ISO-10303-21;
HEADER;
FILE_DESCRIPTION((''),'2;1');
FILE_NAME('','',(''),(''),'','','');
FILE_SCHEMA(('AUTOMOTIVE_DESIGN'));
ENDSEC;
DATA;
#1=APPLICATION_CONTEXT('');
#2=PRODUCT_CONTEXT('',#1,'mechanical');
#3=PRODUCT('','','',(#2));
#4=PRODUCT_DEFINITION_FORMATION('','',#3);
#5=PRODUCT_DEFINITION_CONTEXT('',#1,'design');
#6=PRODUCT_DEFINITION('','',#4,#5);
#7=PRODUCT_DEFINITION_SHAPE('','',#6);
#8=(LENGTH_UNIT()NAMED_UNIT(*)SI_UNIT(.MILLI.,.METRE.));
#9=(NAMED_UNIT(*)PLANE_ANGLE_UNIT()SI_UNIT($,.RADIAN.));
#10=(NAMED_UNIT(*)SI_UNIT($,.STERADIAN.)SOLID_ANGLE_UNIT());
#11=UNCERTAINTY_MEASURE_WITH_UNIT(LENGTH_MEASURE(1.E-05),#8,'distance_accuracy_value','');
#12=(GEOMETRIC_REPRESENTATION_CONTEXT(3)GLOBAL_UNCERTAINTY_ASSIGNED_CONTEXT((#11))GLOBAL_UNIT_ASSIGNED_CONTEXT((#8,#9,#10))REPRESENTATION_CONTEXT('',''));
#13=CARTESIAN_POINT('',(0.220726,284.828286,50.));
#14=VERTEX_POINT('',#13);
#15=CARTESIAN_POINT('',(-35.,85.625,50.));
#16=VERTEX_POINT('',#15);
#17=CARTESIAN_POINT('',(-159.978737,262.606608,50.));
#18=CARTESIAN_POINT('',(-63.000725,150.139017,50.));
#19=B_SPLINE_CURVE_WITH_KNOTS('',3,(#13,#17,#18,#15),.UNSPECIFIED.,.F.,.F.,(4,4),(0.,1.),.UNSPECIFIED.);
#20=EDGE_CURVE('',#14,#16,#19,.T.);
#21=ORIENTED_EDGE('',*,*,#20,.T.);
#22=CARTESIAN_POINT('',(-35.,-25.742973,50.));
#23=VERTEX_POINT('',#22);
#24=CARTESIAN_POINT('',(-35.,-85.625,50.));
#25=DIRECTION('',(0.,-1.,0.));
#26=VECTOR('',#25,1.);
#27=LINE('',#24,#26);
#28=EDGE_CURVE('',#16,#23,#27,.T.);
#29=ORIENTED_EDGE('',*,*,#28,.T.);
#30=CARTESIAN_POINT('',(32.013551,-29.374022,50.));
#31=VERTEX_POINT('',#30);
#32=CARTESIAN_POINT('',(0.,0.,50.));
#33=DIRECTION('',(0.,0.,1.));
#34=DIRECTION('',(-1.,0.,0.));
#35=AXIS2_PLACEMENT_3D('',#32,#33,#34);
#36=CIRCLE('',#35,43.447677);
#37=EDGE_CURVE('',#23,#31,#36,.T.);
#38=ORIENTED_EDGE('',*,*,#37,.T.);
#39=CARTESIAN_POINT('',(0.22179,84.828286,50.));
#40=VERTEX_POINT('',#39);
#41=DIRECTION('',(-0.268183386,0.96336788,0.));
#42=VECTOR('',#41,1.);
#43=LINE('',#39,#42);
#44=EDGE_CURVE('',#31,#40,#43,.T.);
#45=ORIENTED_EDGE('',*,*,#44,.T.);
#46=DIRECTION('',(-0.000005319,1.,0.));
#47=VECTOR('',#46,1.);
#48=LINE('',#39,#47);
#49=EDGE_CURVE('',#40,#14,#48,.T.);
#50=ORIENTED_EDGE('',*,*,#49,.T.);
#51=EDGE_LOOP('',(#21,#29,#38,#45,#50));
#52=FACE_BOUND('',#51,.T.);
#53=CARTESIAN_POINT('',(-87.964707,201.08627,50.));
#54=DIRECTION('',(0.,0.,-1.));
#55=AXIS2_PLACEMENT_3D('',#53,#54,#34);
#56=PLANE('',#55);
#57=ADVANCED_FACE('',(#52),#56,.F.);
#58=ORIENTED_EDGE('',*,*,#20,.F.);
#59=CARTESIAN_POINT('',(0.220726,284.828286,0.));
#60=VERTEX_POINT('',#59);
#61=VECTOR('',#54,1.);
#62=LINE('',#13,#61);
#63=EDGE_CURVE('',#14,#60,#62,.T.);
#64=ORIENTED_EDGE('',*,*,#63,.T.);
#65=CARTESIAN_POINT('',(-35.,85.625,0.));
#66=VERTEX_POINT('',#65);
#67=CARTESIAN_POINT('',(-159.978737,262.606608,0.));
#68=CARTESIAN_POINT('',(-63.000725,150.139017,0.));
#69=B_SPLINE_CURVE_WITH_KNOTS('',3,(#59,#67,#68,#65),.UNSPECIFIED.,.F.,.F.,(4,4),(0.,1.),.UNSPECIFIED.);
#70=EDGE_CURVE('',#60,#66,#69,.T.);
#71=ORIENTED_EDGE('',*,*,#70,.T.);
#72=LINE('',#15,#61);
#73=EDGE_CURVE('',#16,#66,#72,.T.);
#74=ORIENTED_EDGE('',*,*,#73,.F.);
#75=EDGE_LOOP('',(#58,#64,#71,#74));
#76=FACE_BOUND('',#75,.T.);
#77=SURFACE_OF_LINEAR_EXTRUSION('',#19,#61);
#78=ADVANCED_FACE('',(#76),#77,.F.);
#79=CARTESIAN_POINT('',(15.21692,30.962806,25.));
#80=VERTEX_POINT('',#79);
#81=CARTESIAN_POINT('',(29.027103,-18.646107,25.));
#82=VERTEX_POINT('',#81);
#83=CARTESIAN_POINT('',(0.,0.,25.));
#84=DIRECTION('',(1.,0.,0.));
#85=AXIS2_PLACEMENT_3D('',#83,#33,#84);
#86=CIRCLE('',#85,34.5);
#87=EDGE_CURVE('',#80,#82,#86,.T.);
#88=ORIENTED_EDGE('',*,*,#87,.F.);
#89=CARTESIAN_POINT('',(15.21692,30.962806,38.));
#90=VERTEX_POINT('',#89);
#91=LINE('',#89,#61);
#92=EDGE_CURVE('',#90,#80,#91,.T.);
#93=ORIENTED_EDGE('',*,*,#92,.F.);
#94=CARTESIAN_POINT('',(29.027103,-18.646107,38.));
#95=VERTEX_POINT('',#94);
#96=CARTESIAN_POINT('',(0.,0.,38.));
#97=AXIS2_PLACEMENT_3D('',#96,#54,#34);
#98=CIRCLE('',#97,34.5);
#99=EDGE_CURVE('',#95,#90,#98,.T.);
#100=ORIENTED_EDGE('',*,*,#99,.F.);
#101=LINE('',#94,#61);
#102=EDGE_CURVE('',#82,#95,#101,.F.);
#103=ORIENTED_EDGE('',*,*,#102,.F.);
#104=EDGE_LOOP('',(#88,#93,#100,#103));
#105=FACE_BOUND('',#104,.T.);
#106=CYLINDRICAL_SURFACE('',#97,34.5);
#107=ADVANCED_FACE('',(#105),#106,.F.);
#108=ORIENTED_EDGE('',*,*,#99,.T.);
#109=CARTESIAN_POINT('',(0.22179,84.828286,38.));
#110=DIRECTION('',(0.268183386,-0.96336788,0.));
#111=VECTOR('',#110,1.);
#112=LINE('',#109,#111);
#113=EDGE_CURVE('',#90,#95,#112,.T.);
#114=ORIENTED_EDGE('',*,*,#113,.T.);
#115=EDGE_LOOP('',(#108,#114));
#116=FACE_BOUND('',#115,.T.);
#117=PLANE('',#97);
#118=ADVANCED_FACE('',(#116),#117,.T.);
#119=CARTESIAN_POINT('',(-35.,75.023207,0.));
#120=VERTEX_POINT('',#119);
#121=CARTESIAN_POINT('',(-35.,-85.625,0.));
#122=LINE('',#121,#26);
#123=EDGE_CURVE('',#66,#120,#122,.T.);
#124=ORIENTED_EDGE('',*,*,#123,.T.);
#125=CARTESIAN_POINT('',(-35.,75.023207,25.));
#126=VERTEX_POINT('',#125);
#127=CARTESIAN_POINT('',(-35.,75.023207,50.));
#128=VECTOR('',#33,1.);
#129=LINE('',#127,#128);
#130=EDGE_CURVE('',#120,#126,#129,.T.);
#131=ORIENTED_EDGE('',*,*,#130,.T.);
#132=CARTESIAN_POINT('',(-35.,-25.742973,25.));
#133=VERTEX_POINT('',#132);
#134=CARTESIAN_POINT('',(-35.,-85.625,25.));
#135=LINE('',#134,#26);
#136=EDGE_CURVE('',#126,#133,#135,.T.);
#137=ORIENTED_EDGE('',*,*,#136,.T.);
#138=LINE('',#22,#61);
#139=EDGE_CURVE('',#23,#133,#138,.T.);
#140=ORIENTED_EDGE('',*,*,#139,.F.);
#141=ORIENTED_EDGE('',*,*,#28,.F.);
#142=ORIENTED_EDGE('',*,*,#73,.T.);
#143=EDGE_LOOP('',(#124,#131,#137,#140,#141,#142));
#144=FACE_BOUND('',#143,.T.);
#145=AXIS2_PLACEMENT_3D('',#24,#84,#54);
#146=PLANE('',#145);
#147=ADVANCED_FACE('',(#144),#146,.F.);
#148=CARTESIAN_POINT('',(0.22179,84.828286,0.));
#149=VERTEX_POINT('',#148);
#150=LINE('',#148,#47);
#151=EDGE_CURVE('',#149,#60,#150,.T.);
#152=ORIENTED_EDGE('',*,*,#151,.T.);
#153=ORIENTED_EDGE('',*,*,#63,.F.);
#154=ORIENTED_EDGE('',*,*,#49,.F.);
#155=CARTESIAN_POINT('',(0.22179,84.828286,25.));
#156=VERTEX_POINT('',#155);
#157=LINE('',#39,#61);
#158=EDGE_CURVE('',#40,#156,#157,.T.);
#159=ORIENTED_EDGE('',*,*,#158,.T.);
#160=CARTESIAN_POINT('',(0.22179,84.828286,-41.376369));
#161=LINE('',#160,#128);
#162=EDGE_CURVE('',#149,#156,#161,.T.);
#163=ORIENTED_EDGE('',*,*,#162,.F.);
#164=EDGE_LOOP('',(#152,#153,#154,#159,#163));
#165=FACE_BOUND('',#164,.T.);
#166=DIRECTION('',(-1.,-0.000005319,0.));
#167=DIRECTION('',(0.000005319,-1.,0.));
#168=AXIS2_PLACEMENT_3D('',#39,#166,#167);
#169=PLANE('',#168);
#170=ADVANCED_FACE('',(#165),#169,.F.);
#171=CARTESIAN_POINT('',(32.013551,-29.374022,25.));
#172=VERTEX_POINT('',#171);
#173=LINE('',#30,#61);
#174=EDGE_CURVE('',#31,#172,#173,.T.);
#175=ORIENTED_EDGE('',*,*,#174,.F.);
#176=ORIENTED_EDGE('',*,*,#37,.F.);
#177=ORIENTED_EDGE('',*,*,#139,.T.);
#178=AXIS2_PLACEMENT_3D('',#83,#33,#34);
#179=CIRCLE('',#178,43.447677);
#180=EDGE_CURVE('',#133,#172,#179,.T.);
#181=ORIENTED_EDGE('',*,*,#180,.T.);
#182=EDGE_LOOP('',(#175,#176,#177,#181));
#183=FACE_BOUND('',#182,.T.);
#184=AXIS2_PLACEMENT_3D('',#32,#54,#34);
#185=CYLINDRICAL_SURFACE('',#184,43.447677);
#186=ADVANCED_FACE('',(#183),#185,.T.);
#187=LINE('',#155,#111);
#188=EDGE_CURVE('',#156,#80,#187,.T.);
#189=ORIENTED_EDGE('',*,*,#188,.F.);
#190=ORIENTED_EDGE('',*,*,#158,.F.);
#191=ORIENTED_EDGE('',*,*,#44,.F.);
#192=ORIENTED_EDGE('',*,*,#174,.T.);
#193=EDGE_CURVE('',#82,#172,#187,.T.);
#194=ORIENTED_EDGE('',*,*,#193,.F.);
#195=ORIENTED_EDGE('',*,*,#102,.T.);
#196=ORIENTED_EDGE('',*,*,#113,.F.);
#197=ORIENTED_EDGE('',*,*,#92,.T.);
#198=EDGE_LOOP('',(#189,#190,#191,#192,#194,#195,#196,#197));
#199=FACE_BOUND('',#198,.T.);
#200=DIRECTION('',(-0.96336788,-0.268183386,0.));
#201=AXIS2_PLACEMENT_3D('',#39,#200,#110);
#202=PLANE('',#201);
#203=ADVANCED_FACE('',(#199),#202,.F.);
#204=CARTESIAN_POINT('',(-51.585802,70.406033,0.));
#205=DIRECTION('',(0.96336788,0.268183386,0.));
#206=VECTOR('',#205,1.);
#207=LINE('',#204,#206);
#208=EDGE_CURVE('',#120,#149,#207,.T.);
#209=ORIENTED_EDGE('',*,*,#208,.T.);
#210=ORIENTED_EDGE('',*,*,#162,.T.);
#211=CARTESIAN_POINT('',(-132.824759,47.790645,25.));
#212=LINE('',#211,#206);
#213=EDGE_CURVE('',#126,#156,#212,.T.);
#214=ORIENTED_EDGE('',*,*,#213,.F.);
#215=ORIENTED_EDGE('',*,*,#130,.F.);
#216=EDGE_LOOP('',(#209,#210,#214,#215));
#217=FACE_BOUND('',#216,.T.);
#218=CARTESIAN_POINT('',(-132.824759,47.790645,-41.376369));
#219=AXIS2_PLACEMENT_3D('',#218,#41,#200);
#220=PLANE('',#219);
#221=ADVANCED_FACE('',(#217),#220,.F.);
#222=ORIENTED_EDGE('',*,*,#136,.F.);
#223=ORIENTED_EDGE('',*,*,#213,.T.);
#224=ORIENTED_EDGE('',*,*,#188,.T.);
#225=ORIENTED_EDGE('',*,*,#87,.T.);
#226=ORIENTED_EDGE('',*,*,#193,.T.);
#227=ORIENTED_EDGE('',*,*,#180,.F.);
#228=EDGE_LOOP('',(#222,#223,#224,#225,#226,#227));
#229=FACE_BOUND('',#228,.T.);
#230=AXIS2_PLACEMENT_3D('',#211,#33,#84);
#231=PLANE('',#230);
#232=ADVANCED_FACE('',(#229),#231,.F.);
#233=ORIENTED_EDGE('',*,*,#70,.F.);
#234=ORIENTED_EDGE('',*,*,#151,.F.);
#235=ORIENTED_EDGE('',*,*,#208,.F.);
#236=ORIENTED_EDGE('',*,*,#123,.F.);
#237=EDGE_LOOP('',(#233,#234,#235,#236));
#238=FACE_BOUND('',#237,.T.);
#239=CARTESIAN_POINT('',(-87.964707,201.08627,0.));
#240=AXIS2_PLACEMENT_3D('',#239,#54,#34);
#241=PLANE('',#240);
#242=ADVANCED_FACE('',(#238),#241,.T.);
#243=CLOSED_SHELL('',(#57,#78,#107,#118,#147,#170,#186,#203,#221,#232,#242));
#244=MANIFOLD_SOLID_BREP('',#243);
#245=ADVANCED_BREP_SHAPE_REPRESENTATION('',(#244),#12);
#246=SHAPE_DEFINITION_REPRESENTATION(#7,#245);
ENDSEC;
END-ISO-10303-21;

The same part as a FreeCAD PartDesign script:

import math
import FreeCAD as App
import Part
import Sketcher

V = App.Vector
Q = App.Units.Quantity


def add_polygon(sketch, points):
    """Adds a closed chain of lines whose ends are joined by coincident constraints."""
    first, n = sketch.GeometryCount, len(points)
    for a, b in zip(points, points[1:] + points[:1]):
        sketch.addGeometry(Part.LineSegment(App.Vector(*a, 0), App.Vector(*b, 0)), False)
    for i in range(n):
        sketch.addConstraint(Sketcher.Constraint("Coincident", first + i, 2, first + (i + 1) % n, 1))

doc = App.newDocument("Part")
body = doc.addObject("PartDesign::Body", "Body")

# Sketch on XY plane
sketch1 = doc.addObject("Sketcher::SketchObject", "Sketch")
body.addObject(sketch1)
sketch1.AttachmentSupport = (doc.XY_Plane, [""])
sketch1.MapMode = "FlatFace"
sketch1.addGeometry([
    Part.LineSegment(V(0.22179, 84.828286, 0), V(0.220726, 284.828286, 0)),  # 0
    Part.BSplineCurve([V(0.220726, 284.828286, 0), V(-159.978737, 262.606608, 0), V(-63.000725, 150.139017, 0), V(-35, 85.625, 0)], [4, 4], [0, 1], False, 3, [1, 1, 1, 1], False),  # 1
    Part.LineSegment(V(-35, 85.625, 0), V(-35, -85.625, 0)),  # 2
    Part.LineSegment(V(-35, -85.625, 0), V(35, -85.625, 0)),  # 3
    Part.LineSegment(V(35, -85.625, 0), V(35, -40.101937, 0)),  # 4
    Part.LineSegment(V(35, -40.101937, 0), V(0.22179, 84.828286, 0)),  # 5
], False)
sketch1.addConstraint([
    Sketcher.Constraint("Block", 1),
    Sketcher.Constraint("Coincident", 0, 2, 1, 1),
    Sketcher.Constraint("Coincident", 1, 2, 2, 1),
    Sketcher.Constraint("Coincident", 2, 2, 3, 1),
    Sketcher.Constraint("Coincident", 3, 2, 4, 1),
    Sketcher.Constraint("Coincident", 4, 2, 5, 1),
    Sketcher.Constraint("Coincident", 5, 2, 0, 1),
    Sketcher.Constraint("Vertical", 2),
    Sketcher.Constraint("Horizontal", 3),
    Sketcher.Constraint("Vertical", 4),
    Sketcher.Constraint("DistanceX", 3, 1, 3, 2, Q("70 mm")),
    Sketcher.Constraint("Distance", 0, Q("200 mm")),
    Sketcher.Constraint("DistanceY", 2, 2, 2, 1, Q("171.25 mm")),
    Sketcher.Constraint("DistanceY", 4, 1, 4, 2, Q("45.523063 mm")),
    Sketcher.Constraint("DistanceX", -1, 1, 5, 2, Q("0.22179 mm")),
])
pad1 = doc.addObject("PartDesign::Pad", "Pad")
body.addObject(pad1)
pad1.Profile = sketch1
pad1.Length = 50

# Sketch on an angled plane
sketch2 = doc.addObject("Sketcher::SketchObject", "Sketch001")
body.addObject(sketch2)
sketch2.Placement = App.Placement(V(22.122012, 6.158349, 0), App.Rotation(V(0, 0, -1), V(-0.268183386, 0.96336788, 0), V(0.96336788, 0.268183386, 0), "ZXY"))
add_polygon(sketch2, [(-25, 81.661366), (-25, -107.29943), (41.376369, -107.29943), (41.376369, 81.661366)])  # lines 0-3
sketch2.addConstraint([
    Sketcher.Constraint("Vertical", 0),
    Sketcher.Constraint("Horizontal", 1),
    Sketcher.Constraint("Vertical", 2),
    Sketcher.Constraint("Horizontal", 3),
    Sketcher.Constraint("DistanceX", 0, 2, -1, 1, Q("25 mm")),
    Sketcher.Constraint("DistanceX", 1, 1, 1, 2, Q("66.376369 mm")),
    Sketcher.Constraint("DistanceY", 0, 2, 0, 1, Q("188.960796 mm")),
    Sketcher.Constraint("DistanceY", 0, 2, -1, 1, Q("107.29943 mm")),
])
pocket1 = doc.addObject("PartDesign::Pocket", "Pocket")
body.addObject(pocket1)
pocket1.Profile = sketch2
pocket1.Type = "ThroughAll"

# Sketch on XY plane
sketch3 = doc.addObject("Sketcher::SketchObject", "Sketch002")
body.addObject(sketch3)
sketch3.AttachmentSupport = (doc.XY_Plane, [""])
sketch3.MapMode = "FlatFace"
sketch3.AttachmentOffset = App.Placement(V(0, 0, 25), App.Rotation())
sketch3.addGeometry(Part.Circle(V(0, 0, 0), V(0, 0, 1), 34.5), False)
sketch3.addConstraint([
    Sketcher.Constraint("Coincident", 0, 3, -1, 1),
    Sketcher.Constraint("Diameter", 0, Q("69 mm")),
])
pocket2 = doc.addObject("PartDesign::Pocket", "Pocket001")
body.addObject(pocket2)
pocket2.Profile = sketch3
pocket2.Length = 13
pocket2.Reversed = True

# Sketch on XY plane
sketch4 = doc.addObject("Sketcher::SketchObject", "Sketch003")
body.addObject(sketch4)
sketch4.AttachmentSupport = (doc.XY_Plane, [""])
sketch4.MapMode = "FlatFace"
sketch4.AttachmentOffset = App.Placement(V(0, 0, 25), App.Rotation())
sketch4.addGeometry([
    Part.LineSegment(V(35, -85.625, 0), V(-35, -85.625, 0)),  # 0
    Part.LineSegment(V(-35, -85.625, 0), V(-35, -25.742973, 0)),  # 1
    Part.ArcOfCircle(Part.Circle(V(0, 0, 0), V(0, 0, 1), 43.447677), math.radians(-143.665016), math.radians(-42.537925)),  # 2
    Part.LineSegment(V(32.013551, -29.374022, 0), V(35, -40.101937, 0)),  # 3
    Part.LineSegment(V(35, -40.101937, 0), V(35, -85.625, 0)),  # 4
], False)
sketch4.addConstraint([
    Sketcher.Constraint("Coincident", 0, 2, 1, 1),
    Sketcher.Constraint("Coincident", 1, 2, 2, 1),
    Sketcher.Constraint("Coincident", 2, 2, 3, 1),
    Sketcher.Constraint("Coincident", 3, 2, 4, 1),
    Sketcher.Constraint("Coincident", 4, 2, 0, 1),
    Sketcher.Constraint("Horizontal", 0),
    Sketcher.Constraint("Vertical", 1),
    Sketcher.Constraint("Vertical", 4),
    Sketcher.Constraint("Coincident", 2, 3, -1, 1),
    Sketcher.Constraint("DistanceX", 0, 2, 0, 1, Q("70 mm")),
    Sketcher.Constraint("DistanceX", 0, 2, -1, 1, Q("35 mm")),
    Sketcher.Constraint("DistanceY", 0, 2, -1, 1, Q("85.625 mm")),
    Sketcher.Constraint("Radius", 2, Q("43.447677 mm")),
    Sketcher.Constraint("DistanceY", 4, 2, 4, 1, Q("45.523063 mm")),
    Sketcher.Constraint("DistanceX", -1, 1, 2, 2, Q("32.013551 mm")),
])
pocket3 = doc.addObject("PartDesign::Pocket", "Pocket002")
body.addObject(pocket3)
pocket3.Profile = sketch4
pocket3.Type = "ThroughAll"
pocket3.Reversed = True

doc.recompute()
